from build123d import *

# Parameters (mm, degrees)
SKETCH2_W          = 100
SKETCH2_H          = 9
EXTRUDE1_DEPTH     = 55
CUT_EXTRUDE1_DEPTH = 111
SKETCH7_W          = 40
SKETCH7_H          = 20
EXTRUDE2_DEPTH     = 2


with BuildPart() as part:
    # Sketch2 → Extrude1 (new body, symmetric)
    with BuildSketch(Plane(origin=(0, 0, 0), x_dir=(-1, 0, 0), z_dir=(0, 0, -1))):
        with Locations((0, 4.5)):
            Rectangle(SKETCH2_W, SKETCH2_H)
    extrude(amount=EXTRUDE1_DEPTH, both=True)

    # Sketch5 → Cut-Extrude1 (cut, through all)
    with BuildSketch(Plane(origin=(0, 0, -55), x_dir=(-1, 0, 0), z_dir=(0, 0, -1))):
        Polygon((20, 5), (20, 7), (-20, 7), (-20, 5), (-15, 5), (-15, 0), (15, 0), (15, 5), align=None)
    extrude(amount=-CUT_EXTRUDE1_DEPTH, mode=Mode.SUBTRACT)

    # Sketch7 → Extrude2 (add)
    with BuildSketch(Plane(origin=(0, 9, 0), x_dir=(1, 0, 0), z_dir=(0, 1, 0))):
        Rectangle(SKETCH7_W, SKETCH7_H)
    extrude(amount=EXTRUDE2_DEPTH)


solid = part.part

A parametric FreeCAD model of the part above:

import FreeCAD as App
import Part
import Sketcher

V = App.Vector
Q = App.Units.Quantity

doc = App.newDocument("Part")
body = doc.addObject("PartDesign::Body", "Body")

sketch1 = body.newObject("Sketcher::SketchObject", "Sketch")
sketch1.AttachmentSupport = (doc.getObject("XY_Plane"), [""])
sketch1.MapMode = "FlatFace"
sketch1.addGeometry(Part.LineSegment(V(50, 9, 0), V(50, 0, 0)), False)
sketch1.addGeometry(Part.LineSegment(V(50, 0, 0), V(-50, 0, 0)), False)
sketch1.addGeometry(Part.LineSegment(V(-50, 0, 0), V(-50, 9, 0)), False)
sketch1.addGeometry(Part.LineSegment(V(-50, 9, 0), V(50, 9, 0)), False)
sketch1.addConstraint(Sketcher.Constraint("Coincident", 0, 2, 1, 1))
sketch1.addConstraint(Sketcher.Constraint("Coincident", 1, 2, 2, 1))
sketch1.addConstraint(Sketcher.Constraint("Coincident", 2, 2, 3, 1))
sketch1.addConstraint(Sketcher.Constraint("Coincident", 3, 2, 0, 1))
sketch1.addConstraint(Sketcher.Constraint("Vertical", 0))
sketch1.addConstraint(Sketcher.Constraint("Horizontal", 1))
sketch1.addConstraint(Sketcher.Constraint("Vertical", 2))
sketch1.addConstraint(Sketcher.Constraint("Horizontal", 3))
sketch1.addConstraint(Sketcher.Constraint("Symmetric", 0, 2, 1, 2, -1, 1))
sketch1.addConstraint(Sketcher.Constraint("DistanceX", 1, 2, 1, 1, Q("100 mm")))
sketch1.addConstraint(Sketcher.Constraint("DistanceY", 0, 2, 0, 1, Q("9 mm")))
pad1 = body.newObject("PartDesign::Pad", "Pad")
pad1.Profile = sketch1
pad1.Length = 110
pad1.Midplane = True

sketch2 = body.newObject("Sketcher::SketchObject", "Sketch001")
sketch2.AttachmentSupport = (doc.getObject("XY_Plane"), [""])
sketch2.MapMode = "FlatFace"
sketch2.AttachmentOffset = App.Placement(V(0, 0, -55), App.Rotation())
sketch2.addGeometry(Part.LineSegment(V(-20, 5, 0), V(-20, 7, 0)), False)
sketch2.addGeometry(Part.LineSegment(V(-20, 7, 0), V(20, 7, 0)), False)
sketch2.addGeometry(Part.LineSegment(V(20, 7, 0), V(20, 5, 0)), False)
sketch2.addGeometry(Part.LineSegment(V(20, 5, 0), V(15, 5, 0)), False)
sketch2.addGeometry(Part.LineSegment(V(15, 5, 0), V(15, 0, 0)), False)
sketch2.addGeometry(Part.LineSegment(V(15, 0, 0), V(-15, 0, 0)), False)
sketch2.addGeometry(Part.LineSegment(V(-15, 0, 0), V(-15, 5, 0)), False)
sketch2.addGeometry(Part.LineSegment(V(-15, 5, 0), V(-20, 5, 0)), False)
sketch2.addConstraint(Sketcher.Constraint("Coincident", 0, 2, 1, 1))
sketch2.addConstraint(Sketcher.Constraint("Coincident", 1, 2, 2, 1))
sketch2.addConstraint(Sketcher.Constraint("Coincident", 2, 2, 3, 1))
sketch2.addConstraint(Sketcher.Constraint("Coincident", 3, 2, 4, 1))
sketch2.addConstraint(Sketcher.Constraint("Coincident", 4, 2, 5, 1))
sketch2.addConstraint(Sketcher.Constraint("Coincident", 5, 2, 6, 1))
sketch2.addConstraint(Sketcher.Constraint("Coincident", 6, 2, 7, 1))
sketch2.addConstraint(Sketcher.Constraint("Coincident", 7, 2, 0, 1))
sketch2.addConstraint(Sketcher.Constraint("Vertical", 0))
sketch2.addConstraint(Sketcher.Constraint("Horizontal", 1))
sketch2.addConstraint(Sketcher.Constraint("Vertical", 2))
sketch2.addConstraint(Sketcher.Constraint("Horizontal", 3))
sketch2.addConstraint(Sketcher.Constraint("Vertical", 4))
sketch2.addConstraint(Sketcher.Constraint("Horizontal", 5))
sketch2.addConstraint(Sketcher.Constraint("Vertical", 6))
sketch2.addConstraint(Sketcher.Constraint("Horizontal", 7))
sketch2.addConstraint(Sketcher.Constraint("Symmetric", 4, 2, 5, 2, -1, 1))
sketch2.addConstraint(Sketcher.Constraint("Symmetric", 2, 2, 7, 2, -2))
sketch2.addConstraint(Sketcher.Constraint("Equal", 7, 4))
sketch2.addConstraint(Sketcher.Constraint("DistanceX", 1, 1, 1, 2, Q("40 mm")))
sketch2.addConstraint(Sketcher.Constraint("DistanceX", 3, 2, 3, 1, Q("5 mm")))
sketch2.addConstraint(Sketcher.Constraint("DistanceY", 0, 1, 0, 2, Q("2 mm")))
pocket1 = body.newObject("PartDesign::Pocket", "Pocket")
pocket1.Profile = sketch2
pocket1.Type = "ThroughAll"
pocket1.Reversed = True

sketch3 = body.newObject("Sketcher::SketchObject", "Sketch002")
sketch3.AttachmentSupport = (doc.getObject("XZ_Plane"), [""])
sketch3.MapMode = "FlatFace"
sketch3.AttachmentOffset = App.Placement(V(0, 0, -9), App.Rotation())
sketch3.addGeometry(Part.LineSegment(V(-20, -10, 0), V(-20, 10, 0)), False)
sketch3.addGeometry(Part.LineSegment(V(-20, 10, 0), V(20, 10, 0)), False)
sketch3.addGeometry(Part.LineSegment(V(20, 10, 0), V(20, -10, 0)), False)
sketch3.addGeometry(Part.LineSegment(V(20, -10, 0), V(-20, -10, 0)), False)
sketch3.addConstraint(Sketcher.Constraint("Coincident", 0, 2, 1, 1))
sketch3.addConstraint(Sketcher.Constraint("Coincident", 1, 2, 2, 1))
sketch3.addConstraint(Sketcher.Constraint("Coincident", 2, 2, 3, 1))
sketch3.addConstraint(Sketcher.Constraint("Coincident", 3, 2, 0, 1))
sketch3.addConstraint(Sketcher.Constraint("Vertical", 0))
sketch3.addConstraint(Sketcher.Constraint("Horizontal", 1))
sketch3.addConstraint(Sketcher.Constraint("Vertical", 2))
sketch3.addConstraint(Sketcher.Constraint("Horizontal", 3))
sketch3.addConstraint(Sketcher.Constraint("Symmetric", 0, 2, 2, 2, -1, 1))
sketch3.addConstraint(Sketcher.Constraint("DistanceX", 1, 1, 1, 2, Q("40 mm")))
sketch3.addConstraint(Sketcher.Constraint("DistanceY", 0, 1, 0, 2, Q("20 mm")))
pad2 = body.newObject("PartDesign::Pad", "Pad001")
pad2.Profile = sketch3
pad2.Length = 2
pad2.Reversed = True

doc.recompute()
